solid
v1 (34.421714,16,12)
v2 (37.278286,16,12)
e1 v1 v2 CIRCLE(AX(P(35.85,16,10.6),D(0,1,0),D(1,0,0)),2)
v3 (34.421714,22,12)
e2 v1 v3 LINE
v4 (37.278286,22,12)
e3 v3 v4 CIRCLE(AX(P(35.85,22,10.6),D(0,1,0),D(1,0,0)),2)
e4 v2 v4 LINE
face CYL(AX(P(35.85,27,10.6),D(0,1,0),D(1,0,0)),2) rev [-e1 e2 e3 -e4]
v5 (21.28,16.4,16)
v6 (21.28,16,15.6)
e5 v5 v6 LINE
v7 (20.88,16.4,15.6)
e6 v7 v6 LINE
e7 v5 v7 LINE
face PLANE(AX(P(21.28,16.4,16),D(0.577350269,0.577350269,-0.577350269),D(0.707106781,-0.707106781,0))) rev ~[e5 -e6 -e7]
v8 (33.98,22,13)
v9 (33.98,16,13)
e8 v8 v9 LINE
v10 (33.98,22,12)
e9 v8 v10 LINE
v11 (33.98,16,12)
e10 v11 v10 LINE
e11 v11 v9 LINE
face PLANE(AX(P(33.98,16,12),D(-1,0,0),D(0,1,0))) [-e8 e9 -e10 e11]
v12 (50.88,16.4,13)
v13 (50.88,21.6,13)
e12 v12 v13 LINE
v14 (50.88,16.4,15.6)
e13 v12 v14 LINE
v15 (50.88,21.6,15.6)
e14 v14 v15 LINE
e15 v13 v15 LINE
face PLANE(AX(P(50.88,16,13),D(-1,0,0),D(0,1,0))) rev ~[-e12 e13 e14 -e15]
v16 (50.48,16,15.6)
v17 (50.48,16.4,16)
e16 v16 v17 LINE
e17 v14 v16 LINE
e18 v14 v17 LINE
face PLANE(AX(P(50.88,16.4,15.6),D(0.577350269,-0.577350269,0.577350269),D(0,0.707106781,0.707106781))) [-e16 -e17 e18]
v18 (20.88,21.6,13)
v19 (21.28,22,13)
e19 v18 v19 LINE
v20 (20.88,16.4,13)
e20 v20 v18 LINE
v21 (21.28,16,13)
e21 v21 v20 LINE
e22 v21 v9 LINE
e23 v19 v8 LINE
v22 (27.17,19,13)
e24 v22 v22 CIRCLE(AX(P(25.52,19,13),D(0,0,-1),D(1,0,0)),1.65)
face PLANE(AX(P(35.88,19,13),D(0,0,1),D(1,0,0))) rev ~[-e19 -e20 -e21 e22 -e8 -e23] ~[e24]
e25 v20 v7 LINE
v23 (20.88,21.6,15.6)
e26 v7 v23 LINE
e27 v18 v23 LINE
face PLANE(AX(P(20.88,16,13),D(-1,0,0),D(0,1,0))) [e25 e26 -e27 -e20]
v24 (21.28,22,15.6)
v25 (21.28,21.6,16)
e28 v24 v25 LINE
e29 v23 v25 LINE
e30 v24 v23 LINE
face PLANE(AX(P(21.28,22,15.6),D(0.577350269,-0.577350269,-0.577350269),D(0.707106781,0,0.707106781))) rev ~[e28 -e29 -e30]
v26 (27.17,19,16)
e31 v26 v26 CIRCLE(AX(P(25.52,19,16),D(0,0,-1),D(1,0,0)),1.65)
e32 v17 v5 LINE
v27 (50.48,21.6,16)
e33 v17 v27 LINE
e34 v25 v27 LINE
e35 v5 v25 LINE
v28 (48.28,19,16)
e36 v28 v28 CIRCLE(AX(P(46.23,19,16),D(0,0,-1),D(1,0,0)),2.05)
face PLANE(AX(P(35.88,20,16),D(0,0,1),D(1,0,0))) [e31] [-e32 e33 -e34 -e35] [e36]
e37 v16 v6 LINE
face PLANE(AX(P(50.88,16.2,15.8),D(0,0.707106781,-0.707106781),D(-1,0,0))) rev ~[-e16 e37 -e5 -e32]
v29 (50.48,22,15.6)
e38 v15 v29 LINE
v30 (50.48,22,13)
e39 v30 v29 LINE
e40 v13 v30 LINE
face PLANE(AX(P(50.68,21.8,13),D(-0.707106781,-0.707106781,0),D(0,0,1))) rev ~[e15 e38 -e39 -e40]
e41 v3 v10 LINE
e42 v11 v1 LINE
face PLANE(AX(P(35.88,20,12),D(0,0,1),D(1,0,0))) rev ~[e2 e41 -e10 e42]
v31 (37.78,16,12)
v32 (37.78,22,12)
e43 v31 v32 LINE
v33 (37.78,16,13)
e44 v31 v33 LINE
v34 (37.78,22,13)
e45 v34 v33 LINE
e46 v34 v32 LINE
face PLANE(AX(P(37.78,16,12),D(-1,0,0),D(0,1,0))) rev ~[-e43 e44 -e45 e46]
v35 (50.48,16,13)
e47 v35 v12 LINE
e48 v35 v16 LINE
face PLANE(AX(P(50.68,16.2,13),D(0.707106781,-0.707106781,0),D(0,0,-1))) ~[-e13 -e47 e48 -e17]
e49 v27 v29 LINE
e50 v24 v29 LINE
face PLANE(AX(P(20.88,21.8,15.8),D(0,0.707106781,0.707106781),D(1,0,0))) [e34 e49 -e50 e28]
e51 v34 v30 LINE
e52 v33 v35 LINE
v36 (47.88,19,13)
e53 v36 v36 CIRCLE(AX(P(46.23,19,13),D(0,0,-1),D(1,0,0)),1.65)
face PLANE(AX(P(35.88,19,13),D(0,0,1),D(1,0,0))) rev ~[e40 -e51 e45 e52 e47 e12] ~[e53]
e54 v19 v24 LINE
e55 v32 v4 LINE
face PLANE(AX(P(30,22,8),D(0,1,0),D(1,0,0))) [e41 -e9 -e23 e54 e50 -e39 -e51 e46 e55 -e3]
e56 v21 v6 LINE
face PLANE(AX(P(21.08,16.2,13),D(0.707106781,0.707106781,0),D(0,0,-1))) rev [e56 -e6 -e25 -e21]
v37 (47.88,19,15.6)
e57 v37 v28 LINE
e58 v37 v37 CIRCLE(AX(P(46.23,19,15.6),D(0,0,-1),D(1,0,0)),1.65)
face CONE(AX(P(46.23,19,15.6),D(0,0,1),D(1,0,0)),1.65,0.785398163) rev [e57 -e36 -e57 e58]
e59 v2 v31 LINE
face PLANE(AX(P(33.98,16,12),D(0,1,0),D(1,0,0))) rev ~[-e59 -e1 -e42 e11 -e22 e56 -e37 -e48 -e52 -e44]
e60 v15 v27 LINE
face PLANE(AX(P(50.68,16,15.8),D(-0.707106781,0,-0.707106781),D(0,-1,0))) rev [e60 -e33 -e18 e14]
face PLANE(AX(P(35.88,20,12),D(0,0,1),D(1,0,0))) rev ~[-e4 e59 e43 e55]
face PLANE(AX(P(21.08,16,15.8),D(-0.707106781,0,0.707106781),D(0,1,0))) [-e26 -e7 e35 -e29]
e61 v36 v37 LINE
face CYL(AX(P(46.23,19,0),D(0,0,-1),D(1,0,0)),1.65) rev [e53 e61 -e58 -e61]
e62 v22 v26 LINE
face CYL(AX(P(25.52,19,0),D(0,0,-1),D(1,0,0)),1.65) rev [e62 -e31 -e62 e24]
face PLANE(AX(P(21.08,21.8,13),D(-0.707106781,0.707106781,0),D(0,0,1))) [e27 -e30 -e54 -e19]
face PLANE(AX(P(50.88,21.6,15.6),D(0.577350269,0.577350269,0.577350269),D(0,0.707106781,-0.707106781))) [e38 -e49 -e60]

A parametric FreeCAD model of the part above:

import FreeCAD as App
import Part
import Sketcher

V = App.Vector
Q = App.Units.Quantity


def edges_at(feature, points):
    """Names of the edges that pass closest to the given points."""
    edges = feature.Shape.Edges
    near = lambda p: min(range(len(edges)), key=lambda i: edges[i].distToShape(Part.Vertex(*p))[0])
    return sorted({f"Edge{near(p) + 1}" for p in points})

doc = App.newDocument("Part")
body = doc.addObject("PartDesign::Body", "Body")

# Sketch on XY plane
sketch1 = body.newObject("Sketcher::SketchObject", "Sketch")
sketch1.AttachmentSupport = (doc.getObject("XY_Plane"), [""])
sketch1.MapMode = "FlatFace"
sketch1.AttachmentOffset = App.Placement(V(0, 0, 8), App.Rotation())
sketch1.addGeometry(Part.LineSegment(V(30, 33, 0), V(30, 23, 0)), False)
sketch1.addGeometry(Part.LineSegment(V(30, 23, 0), V(40, 23, 0)), False)
sketch1.addGeometry(Part.LineSegment(V(40, 23, 0), V(40, 33, 0)), False)
sketch1.addGeometry(Part.LineSegment(V(40, 33, 0), V(30, 33, 0)), False)
sketch1.addConstraint(Sketcher.Constraint("Coincident", 0, 2, 1, 1))
sketch1.addConstraint(Sketcher.Constraint("Coincident", 1, 2, 2, 1))
sketch1.addConstraint(Sketcher.Constraint("Coincident", 2, 2, 3, 1))
sketch1.addConstraint(Sketcher.Constraint("Coincident", 3, 2, 0, 1))
sketch1.addConstraint(Sketcher.Constraint("Vertical", 0))
sketch1.addConstraint(Sketcher.Constraint("Horizontal", 1))
sketch1.addConstraint(Sketcher.Constraint("Vertical", 2))
sketch1.addConstraint(Sketcher.Constraint("Horizontal", 3))
sketch1.addConstraint(Sketcher.Constraint("Equal", 3, 0))
sketch1.addConstraint(Sketcher.Constraint("DistanceX", 1, 1, 1, 2, Q("10 mm")))
sketch1.addConstraint(Sketcher.Constraint("DistanceX", -1, 1, 0, 2, Q("30 mm")))
sketch1.addConstraint(Sketcher.Constraint("DistanceY", -1, 1, 0, 2, Q("23 mm")))
pad1 = body.newObject("PartDesign::Pad", "Pad")
pad1.Profile = sketch1
pad1.Length = 10
body2 = doc.addObject("PartDesign::Body", "Body001")

# Sketch on XZ plane
sketch2 = body2.newObject("Sketcher::SketchObject", "Sketch001")
sketch2.AttachmentSupport = (doc.getObject("XZ_Plane001"), [""])
sketch2.MapMode = "FlatFace"
sketch2.AttachmentOffset = App.Placement(V(0, 0, -27), App.Rotation())
sketch2.addGeometry(Part.Circle(V(35.9, 10.6, 0), V(0, 0, 1), 2), False)
sketch2.addConstraint(Sketcher.Constraint("Diameter", 0, Q("4 mm")))
sketch2.addConstraint(Sketcher.Constraint("DistanceY", -1, 1, 0, 3, Q("10.6 mm")))
sketch2.addConstraint(Sketcher.Constraint("DistanceX", -1, 1, 0, 3, Q("35.85 mm")))
pad2 = body2.newObject("PartDesign::Pad", "Pad001")
pad2.Profile = sketch2
pad2.Length = 32
body3 = doc.addObject("PartDesign::Body", "Body002")

# Sketch on XY plane
sketch3 = body3.newObject("Sketcher::SketchObject", "Sketch002")
sketch3.AttachmentSupport = (doc.getObject("XY_Plane002"), [""])
sketch3.MapMode = "FlatFace"
sketch3.AttachmentOffset = App.Placement(V(0, 0, 12), App.Rotation())
sketch3.addGeometry(Part.LineSegment(V(34, 24, 0), V(34, 16, 0)), False)
sketch3.addGeometry(Part.LineSegment(V(34, 16, 0), V(37.8, 16, 0)), False)
sketch3.addGeometry(Part.LineSegment(V(37.8, 16, 0), V(37.8, 24, 0)), False)
sketch3.addGeometry(Part.LineSegment(V(37.8, 24, 0), V(34, 24, 0)), False)
sketch3.addConstraint(Sketcher.Constraint("Coincident", 0, 2, 1, 1))
sketch3.addConstraint(Sketcher.Constraint("Coincident", 1, 2, 2, 1))
sketch3.addConstraint(Sketcher.Constraint("Coincident", 2, 2, 3, 1))
sketch3.addConstraint(Sketcher.Constraint("Coincident", 3, 2, 0, 1))
sketch3.addConstraint(Sketcher.Constraint("Vertical", 0))
sketch3.addConstraint(Sketcher.Constraint("Horizontal", 1))
sketch3.addConstraint(Sketcher.Constraint("Vertical", 2))
sketch3.addConstraint(Sketcher.Constraint("Horizontal", 3))
sketch3.addConstraint(Sketcher.Constraint("DistanceY", 0, 2, 0, 1, Q("8 mm")))
sketch3.addConstraint(Sketcher.Constraint("DistanceX", 1, 1, 1, 2, Q("3.8 mm")))
sketch3.addConstraint(Sketcher.Constraint("DistanceY", -1, 1, 0, 2, Q("16 mm")))
sketch3.addConstraint(Sketcher.Constraint("DistanceX", -1, 1, 0, 2, Q("33.98 mm")))
pad3 = body3.newObject("PartDesign::Pad", "Pad002")
pad3.Profile = sketch3
pad3.Length = 4
doc.recompute()

boolean = body3.newObject("PartDesign::Boolean", "Boolean")
boolean.Type = "Cut"
boolean.addObjects([body2])
body4 = doc.addObject("PartDesign::Body", "Body003")
doc.recompute()

body3.Placement = App.Placement(V(0, 1, 0), App.Rotation(V(0, 0, 1), 0))
boolean2 = body4.newObject("PartDesign::Boolean", "Boolean001")
boolean2.Type = "Fuse"
boolean2.addObjects([body3])
doc.recompute()

boolean3 = body4.newObject("PartDesign::Boolean", "Boolean002")
boolean3.Type = "Cut"
boolean3.addObjects([body])
body5 = doc.addObject("PartDesign::Body", "Body004")

# Sketch on XY plane
sketch4 = body5.newObject("Sketcher::SketchObject", "Sketch003")
sketch4.AttachmentSupport = (doc.getObject("XY_Plane004"), [""])
sketch4.MapMode = "FlatFace"
sketch4.addGeometry(Part.Circle(V(46.2, 20, 0), V(0, 0, 1), 1.6), False)
sketch4.addConstraint(Sketcher.Constraint("Diameter", 0, Q("3.3 mm")))
sketch4.addConstraint(Sketcher.Constraint("DistanceY", -1, 1, 0, 3, Q("20 mm")))
sketch4.addConstraint(Sketcher.Constraint("DistanceX", -1, 1, 0, 3, Q("46.23 mm")))
pad4 = body5.newObject("PartDesign::Pad", "Pad003")
pad4.Profile = sketch4
pad4.Length = 30
body6 = doc.addObject("PartDesign::Body", "Body005")
body6.AllowCompound = True

# Sketch on XY plane
sketch5 = body6.newObject("Sketcher::SketchObject", "Sketch004")
sketch5.AttachmentSupport = (doc.getObject("XY_Plane005"), [""])
sketch5.MapMode = "FlatFace"
sketch5.addGeometry(Part.Circle(V(25.5, 20, 0), V(0, 0, 1), 1.6), False)
sketch5.addConstraint(Sketcher.Constraint("Diameter", 0, Q("3.3 mm")))
sketch5.addConstraint(Sketcher.Constraint("DistanceY", -1, 1, 0, 3, Q("20 mm")))
sketch5.addConstraint(Sketcher.Constraint("DistanceX", -1, 1, 0, 3, Q("25.52 mm")))
pad5 = body6.newObject("PartDesign::Pad", "Pad004")
pad5.Profile = sketch5
pad5.Length = 30
doc.recompute()

boolean4 = body6.newObject("PartDesign::Boolean", "Boolean003")
boolean4.Type = "Fuse"
boolean4.addObjects([body5])
body7 = doc.addObject("PartDesign::Body", "Body006")

# Sketch on XY plane
sketch6 = body7.newObject("Sketcher::SketchObject", "Sketch005")
sketch6.AttachmentSupport = (doc.getObject("XY_Plane006"), [""])
sketch6.MapMode = "FlatFace"
sketch6.AttachmentOffset = App.Placement(V(0, 0, 13), App.Rotation())
sketch6.addGeometry(Part.LineSegment(V(21, 23, 0), V(21, 17, 0)), False)
sketch6.addGeometry(Part.LineSegment(V(21, 17, 0), V(51, 17, 0)), False)
sketch6.addGeometry(Part.LineSegment(V(51, 17, 0), V(51, 23, 0)), False)
sketch6.addGeometry(Part.LineSegment(V(51, 23, 0), V(21, 23, 0)), False)
sketch6.addConstraint(Sketcher.Constraint("Coincident", 0, 2, 1, 1))
sketch6.addConstraint(Sketcher.Constraint("Coincident", 1, 2, 2, 1))
sketch6.addConstraint(Sketcher.Constraint("Coincident", 2, 2, 3, 1))
sketch6.addConstraint(Sketcher.Constraint("Coincident", 3, 2, 0, 1))
sketch6.addConstraint(Sketcher.Constraint("Vertical", 0))
sketch6.addConstraint(Sketcher.Constraint("Horizontal", 1))
sketch6.addConstraint(Sketcher.Constraint("Vertical", 2))
sketch6.addConstraint(Sketcher.Constraint("Horizontal", 3))
sketch6.addConstraint(Sketcher.Constraint("DistanceX", 1, 1, 1, 2, Q("30 mm")))
sketch6.addConstraint(Sketcher.Constraint("DistanceY", 0, 2, 0, 1, Q("6 mm")))
sketch6.addConstraint(Sketcher.Constraint("DistanceY", -1, 1, 0, 2, Q("17 mm")))
sketch6.addConstraint(Sketcher.Constraint("DistanceX", -1, 1, 0, 2, Q("20.88 mm")))
pad6 = body7.newObject("PartDesign::Pad", "Pad005")
pad6.Profile = sketch6
pad6.Length = 3
doc.recompute()

boolean5 = body7.newObject("PartDesign::Boolean", "Boolean004")
boolean5.Type = "Cut"
boolean5.addObjects([body6])
doc.recompute()

boolean6 = body7.newObject("PartDesign::Boolean", "Boolean005")
boolean6.Type = "Fuse"
boolean6.addObjects([body4])
doc.recompute()

chamfer = body7.newObject("PartDesign::Chamfer", "Chamfer")
chamfer.Base = (boolean6, edges_at(boolean6, [
    (20.88, 17, 14.5),
    (20.88, 20, 16),
    (20.88, 23, 14.5),
    (35.88, 17, 16),
    (35.88, 23, 16),
    (35.88, 17, 16),
    (35.88, 23, 16),
    (50.88, 17, 14.5),
    (35.88, 17, 16),
    (35.88, 23, 16),
    (50.88, 20, 16),
    (44.58, 20, 16),
    (50.88, 23, 14.5),
]))
chamfer.Size = 0.4
body8 = doc.addObject("PartDesign::Body", "Body007")
doc.recompute()

body7.Placement = App.Placement(V(0, -1, 0), App.Rotation(V(0, 0, 1), 0))
boolean7 = body8.newObject("PartDesign::Boolean", "Boolean006")
boolean7.Type = "Fuse"
boolean7.addObjects([body7])

doc.recompute()
